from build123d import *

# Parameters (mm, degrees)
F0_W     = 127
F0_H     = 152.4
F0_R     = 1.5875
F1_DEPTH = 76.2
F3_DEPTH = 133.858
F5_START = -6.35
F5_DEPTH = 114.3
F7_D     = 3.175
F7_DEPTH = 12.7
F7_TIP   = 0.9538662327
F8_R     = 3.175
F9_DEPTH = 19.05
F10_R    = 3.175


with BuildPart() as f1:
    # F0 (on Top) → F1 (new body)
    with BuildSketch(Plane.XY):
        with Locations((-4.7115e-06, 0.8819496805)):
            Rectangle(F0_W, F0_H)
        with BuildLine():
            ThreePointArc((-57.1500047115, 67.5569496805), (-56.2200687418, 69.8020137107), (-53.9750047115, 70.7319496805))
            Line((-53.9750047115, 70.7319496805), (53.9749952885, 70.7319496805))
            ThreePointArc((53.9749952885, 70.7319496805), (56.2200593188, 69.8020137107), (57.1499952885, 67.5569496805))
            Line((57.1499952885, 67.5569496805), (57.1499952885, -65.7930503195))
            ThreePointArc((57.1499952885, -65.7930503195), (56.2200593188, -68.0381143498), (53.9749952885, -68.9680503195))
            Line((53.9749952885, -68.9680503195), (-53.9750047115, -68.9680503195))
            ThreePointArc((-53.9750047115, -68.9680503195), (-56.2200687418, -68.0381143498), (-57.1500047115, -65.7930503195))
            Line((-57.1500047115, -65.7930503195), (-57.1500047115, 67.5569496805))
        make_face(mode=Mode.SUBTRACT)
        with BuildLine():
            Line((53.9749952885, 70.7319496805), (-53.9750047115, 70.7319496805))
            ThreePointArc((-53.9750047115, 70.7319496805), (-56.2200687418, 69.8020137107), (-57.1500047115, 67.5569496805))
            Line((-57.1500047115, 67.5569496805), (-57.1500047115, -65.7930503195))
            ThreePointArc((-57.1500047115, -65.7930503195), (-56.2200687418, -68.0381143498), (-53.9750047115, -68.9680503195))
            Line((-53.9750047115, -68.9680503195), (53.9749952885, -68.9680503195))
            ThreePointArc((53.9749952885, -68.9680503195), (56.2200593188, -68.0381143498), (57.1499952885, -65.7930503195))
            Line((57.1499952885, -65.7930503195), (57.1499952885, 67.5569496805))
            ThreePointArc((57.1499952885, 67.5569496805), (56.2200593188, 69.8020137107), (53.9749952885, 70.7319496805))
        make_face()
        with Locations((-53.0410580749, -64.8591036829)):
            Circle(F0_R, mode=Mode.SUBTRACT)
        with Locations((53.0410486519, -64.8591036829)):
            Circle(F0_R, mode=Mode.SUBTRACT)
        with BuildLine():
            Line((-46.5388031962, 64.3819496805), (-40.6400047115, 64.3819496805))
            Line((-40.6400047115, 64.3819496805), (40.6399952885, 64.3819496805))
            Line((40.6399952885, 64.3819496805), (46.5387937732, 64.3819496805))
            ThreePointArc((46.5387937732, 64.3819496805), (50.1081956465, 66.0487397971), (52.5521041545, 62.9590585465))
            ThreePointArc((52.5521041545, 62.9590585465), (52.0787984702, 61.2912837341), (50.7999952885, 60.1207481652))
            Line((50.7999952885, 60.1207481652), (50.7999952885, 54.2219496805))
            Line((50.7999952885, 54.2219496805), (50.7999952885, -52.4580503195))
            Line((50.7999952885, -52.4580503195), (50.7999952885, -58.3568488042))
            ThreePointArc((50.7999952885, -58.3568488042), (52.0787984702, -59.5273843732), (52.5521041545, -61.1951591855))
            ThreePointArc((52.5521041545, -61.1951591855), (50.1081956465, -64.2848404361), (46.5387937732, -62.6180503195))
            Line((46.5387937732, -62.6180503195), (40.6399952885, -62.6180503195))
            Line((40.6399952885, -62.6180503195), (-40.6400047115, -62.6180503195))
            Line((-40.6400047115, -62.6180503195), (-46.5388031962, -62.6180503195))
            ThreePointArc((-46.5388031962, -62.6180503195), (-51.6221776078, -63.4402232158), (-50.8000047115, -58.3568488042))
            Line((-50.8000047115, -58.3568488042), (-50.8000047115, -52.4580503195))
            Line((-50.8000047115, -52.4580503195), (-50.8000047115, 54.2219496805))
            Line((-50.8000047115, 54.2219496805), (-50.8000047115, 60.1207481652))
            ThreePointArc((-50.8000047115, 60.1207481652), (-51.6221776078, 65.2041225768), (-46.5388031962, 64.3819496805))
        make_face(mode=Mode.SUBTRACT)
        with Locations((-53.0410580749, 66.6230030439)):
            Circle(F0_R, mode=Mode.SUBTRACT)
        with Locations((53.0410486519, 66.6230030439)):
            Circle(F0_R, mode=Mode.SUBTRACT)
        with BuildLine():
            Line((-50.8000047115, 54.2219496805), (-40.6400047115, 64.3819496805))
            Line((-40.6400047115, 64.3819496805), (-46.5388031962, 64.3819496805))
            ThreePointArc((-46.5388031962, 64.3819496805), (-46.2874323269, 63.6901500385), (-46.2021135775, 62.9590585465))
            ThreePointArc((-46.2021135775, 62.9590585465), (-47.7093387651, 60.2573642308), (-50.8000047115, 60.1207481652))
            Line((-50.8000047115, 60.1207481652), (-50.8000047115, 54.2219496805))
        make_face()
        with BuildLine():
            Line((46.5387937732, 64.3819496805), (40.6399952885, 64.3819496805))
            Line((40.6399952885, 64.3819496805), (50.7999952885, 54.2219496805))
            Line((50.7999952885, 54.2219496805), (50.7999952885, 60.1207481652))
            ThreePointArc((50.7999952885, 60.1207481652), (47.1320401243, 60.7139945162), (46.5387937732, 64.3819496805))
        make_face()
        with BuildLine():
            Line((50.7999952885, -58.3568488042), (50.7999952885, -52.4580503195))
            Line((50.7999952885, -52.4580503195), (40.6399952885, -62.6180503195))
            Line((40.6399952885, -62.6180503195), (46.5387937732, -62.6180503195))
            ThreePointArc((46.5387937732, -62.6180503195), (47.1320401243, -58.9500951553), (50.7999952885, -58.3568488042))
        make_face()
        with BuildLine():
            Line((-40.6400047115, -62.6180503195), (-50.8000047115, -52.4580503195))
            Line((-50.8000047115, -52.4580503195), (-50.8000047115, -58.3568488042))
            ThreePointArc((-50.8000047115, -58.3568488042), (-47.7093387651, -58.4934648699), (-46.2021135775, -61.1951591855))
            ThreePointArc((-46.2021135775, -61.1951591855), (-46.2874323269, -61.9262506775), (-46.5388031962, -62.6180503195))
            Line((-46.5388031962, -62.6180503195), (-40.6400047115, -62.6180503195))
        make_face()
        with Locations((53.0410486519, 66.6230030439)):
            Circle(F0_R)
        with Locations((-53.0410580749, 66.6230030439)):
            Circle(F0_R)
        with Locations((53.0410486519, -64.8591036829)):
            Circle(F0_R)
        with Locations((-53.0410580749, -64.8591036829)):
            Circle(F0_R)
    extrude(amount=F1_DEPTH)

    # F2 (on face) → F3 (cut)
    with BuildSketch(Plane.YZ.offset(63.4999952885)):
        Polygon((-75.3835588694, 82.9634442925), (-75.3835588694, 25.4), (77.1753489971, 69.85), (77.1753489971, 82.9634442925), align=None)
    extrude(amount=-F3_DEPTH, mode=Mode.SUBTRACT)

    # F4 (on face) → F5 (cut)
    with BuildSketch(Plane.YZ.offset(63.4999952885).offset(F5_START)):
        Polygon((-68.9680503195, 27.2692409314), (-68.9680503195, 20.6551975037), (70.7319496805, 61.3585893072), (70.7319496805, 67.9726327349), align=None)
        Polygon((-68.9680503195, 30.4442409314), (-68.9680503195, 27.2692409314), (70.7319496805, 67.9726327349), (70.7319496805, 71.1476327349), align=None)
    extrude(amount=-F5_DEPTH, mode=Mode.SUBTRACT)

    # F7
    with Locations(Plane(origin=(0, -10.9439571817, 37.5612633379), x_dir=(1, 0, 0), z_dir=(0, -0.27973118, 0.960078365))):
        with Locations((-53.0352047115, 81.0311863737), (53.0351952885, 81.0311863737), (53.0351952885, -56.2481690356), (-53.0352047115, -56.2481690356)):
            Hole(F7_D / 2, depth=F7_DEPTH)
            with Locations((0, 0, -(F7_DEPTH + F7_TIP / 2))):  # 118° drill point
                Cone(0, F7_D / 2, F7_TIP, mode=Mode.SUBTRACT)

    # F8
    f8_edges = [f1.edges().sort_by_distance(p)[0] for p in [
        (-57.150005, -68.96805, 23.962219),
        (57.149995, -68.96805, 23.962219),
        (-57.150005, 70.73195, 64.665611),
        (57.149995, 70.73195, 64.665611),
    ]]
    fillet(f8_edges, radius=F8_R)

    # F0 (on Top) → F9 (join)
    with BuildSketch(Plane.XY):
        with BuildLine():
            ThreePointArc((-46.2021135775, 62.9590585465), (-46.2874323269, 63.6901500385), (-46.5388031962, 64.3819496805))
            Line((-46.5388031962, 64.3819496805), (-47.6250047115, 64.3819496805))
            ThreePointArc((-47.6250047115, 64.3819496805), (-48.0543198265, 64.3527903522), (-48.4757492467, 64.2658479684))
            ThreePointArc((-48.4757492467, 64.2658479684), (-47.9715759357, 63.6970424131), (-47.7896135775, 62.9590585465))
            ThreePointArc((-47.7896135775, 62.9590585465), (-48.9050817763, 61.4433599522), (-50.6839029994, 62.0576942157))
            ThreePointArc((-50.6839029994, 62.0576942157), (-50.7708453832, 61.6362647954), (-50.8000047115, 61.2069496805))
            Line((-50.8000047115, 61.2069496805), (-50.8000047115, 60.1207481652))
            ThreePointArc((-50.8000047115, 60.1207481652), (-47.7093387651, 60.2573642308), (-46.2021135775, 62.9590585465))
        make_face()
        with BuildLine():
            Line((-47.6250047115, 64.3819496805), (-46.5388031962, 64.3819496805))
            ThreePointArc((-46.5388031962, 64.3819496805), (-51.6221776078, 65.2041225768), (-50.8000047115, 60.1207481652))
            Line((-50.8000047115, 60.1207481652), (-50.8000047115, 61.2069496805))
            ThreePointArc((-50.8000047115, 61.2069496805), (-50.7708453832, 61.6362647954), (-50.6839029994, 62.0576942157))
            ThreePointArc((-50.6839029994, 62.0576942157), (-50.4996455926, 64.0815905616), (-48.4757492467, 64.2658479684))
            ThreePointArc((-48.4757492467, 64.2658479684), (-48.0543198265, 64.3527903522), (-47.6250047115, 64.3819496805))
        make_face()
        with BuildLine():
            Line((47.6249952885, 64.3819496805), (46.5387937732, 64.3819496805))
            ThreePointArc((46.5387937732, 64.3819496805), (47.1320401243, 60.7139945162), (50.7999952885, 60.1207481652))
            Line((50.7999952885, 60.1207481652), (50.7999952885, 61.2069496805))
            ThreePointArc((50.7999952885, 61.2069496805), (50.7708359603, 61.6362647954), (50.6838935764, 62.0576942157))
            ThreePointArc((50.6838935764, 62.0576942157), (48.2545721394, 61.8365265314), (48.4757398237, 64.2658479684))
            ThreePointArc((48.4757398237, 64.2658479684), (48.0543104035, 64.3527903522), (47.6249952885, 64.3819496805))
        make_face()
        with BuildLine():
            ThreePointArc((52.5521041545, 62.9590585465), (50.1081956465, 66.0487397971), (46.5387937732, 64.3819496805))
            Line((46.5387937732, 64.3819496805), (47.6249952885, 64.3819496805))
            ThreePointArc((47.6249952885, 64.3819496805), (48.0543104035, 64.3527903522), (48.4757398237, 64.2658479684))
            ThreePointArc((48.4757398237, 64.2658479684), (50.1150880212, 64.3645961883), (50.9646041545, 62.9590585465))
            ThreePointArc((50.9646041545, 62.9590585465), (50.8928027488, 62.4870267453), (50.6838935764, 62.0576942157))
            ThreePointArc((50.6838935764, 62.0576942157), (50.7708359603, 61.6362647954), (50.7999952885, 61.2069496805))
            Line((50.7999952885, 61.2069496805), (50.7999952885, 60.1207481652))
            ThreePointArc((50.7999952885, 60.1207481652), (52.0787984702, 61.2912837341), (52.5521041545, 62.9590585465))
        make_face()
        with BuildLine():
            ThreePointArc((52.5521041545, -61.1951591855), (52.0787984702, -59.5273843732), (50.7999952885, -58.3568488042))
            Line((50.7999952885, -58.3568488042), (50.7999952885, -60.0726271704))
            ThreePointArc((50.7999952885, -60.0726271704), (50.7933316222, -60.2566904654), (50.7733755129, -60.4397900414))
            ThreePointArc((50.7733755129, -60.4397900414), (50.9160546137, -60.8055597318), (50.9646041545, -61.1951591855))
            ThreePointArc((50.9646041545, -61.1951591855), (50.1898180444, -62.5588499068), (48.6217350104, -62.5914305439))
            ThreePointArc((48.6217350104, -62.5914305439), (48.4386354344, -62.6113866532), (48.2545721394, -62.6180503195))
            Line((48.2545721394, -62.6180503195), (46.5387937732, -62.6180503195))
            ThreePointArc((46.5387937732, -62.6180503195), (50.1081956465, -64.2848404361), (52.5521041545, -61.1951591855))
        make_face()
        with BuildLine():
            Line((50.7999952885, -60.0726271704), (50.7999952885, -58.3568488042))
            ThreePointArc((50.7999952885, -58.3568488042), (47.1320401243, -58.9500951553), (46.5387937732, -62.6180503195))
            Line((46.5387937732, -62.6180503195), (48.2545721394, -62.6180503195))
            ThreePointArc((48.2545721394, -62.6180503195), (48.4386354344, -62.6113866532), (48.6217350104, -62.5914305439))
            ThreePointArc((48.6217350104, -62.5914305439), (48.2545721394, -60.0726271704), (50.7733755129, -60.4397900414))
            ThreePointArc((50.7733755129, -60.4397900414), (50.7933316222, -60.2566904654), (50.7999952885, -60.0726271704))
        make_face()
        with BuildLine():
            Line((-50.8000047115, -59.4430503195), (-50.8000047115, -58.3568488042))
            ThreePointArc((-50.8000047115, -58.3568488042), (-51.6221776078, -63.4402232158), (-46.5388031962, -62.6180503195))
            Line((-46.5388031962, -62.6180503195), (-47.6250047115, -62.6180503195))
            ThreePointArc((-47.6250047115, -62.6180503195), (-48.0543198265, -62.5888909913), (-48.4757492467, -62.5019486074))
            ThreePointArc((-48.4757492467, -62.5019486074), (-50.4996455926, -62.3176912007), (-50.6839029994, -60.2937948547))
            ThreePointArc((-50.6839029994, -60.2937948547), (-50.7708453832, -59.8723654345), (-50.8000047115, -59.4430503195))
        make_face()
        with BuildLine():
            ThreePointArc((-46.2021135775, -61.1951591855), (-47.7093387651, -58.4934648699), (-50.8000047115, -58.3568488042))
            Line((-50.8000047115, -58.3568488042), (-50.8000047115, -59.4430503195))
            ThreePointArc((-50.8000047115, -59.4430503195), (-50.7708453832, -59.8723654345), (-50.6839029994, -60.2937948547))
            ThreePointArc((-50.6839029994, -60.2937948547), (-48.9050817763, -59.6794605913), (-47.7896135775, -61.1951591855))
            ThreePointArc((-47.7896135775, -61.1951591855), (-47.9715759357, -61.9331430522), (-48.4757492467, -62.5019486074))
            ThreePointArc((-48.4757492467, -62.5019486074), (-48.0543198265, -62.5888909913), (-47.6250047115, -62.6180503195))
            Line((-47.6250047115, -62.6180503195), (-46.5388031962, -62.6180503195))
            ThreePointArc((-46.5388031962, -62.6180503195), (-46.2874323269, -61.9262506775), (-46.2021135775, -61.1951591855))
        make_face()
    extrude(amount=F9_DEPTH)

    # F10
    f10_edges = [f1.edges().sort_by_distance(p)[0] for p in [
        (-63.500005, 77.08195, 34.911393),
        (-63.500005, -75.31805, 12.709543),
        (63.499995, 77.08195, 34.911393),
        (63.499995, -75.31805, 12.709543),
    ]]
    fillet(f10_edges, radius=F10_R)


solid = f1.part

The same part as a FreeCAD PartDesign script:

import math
import FreeCAD as App
import Part
import Sketcher
from FreeCAD import Vector
Q = App.Units.Quantity


def edges_at(feature, points):
    """Names of the edges that pass closest to the given points."""
    edges = feature.Shape.Edges
    near = lambda p: min(range(len(edges)), key=lambda i: edges[i].distToShape(Part.Vertex(*p))[0])
    return sorted({f"Edge{near(p) + 1}" for p in points})

doc = App.newDocument("Part")
params = doc.addObject("Spreadsheet::Sheet", "Params")
for row, (alias, value) in enumerate([
    ("sketch1_width", "5 in"),
    ("sketch1_height", "6 in"),
    ("sketch1_width2", "3.2 in"),
    ("sketch1_height2", "4.2 in"),
    ("sketch1_radius", "0.125 in"),
    ("pad1_length", "3 in"),
    ("pocket1_length", "5.27 in"),
    ("pocket2_length", "4.5 in"),
    ("sketch4_diameter", "0.125 in"),
    ("hole_diameter", "0.125 in"),
    ("hole_depth", "0.5 in"),
    ("fillet_radius", "0.125 in"),
    ("sketch5_diameter", "0.25 in"),
    ("sketch5_radius", "0.0625 in"),
    ("pad2_length", "0.75 in"),
    ("fillet2_radius", "0.125 in"),
], start=1):
    params.set(f"A{row}", alias)
    params.set(f"B{row}", "=" + value)
    params.setAlias(f"B{row}", alias)

body = doc.addObject("PartDesign::Body", "Body")

sketch1 = body.newObject("Sketcher::SketchObject", "Sketch")
sketch1.AttachmentSupport = (doc.getObject("XY_Plane"), [""])
sketch1.MapMode = "FlatFace"
sketch1.addGeometry(Part.LineSegment(Vector(-63.5, 77.1, 0), Vector(-63.5, -75.3, 0)), False)
sketch1.addGeometry(Part.LineSegment(Vector(-63.5, -75.3, 0), Vector(63.5, -75.3, 0)), False)
sketch1.addGeometry(Part.LineSegment(Vector(63.5, -75.3, 0), Vector(63.5, 77.1, 0)), False)
sketch1.addGeometry(Part.LineSegment(Vector(63.5, 77.1, 0), Vector(-63.5, 77.1, 0)), False)
sketch1.addGeometry(Part.ArcOfCircle(Part.Circle(Vector(-49.4, 63, 0), Vector(0, 0, 1), 3.2), math.radians(27), math.radians(243)), False)
sketch1.addGeometry(Part.ArcOfCircle(Part.Circle(Vector(-49.4, 63, 0), Vector(0, 0, 1), 3.2), math.radians(0), math.radians(27)), False)
sketch1.addGeometry(Part.ArcOfCircle(Part.Circle(Vector(-49.4, 63, 0), Vector(0, 0, 1), 3.2), math.radians(-117), math.radians(0)), False)
sketch1.addGeometry(Part.LineSegment(Vector(-50.8, -52.5, 0), Vector(-50.8, 54.2, 0)), False)
sketch1.addGeometry(Part.LineSegment(Vector(-50.8, 54.2, 0), Vector(-40.6, 64.4, 0)), False)
sketch1.addGeometry(Part.LineSegment(Vector(-40.6, 64.4, 0), Vector(40.6, 64.4, 0)), False)
sketch1.addGeometry(Part.LineSegment(Vector(40.6, 64.4, 0), Vector(50.8, 54.2, 0)), False)
sketch1.addGeometry(Part.LineSegment(Vector(50.8, 54.2, 0), Vector(50.8, -52.5, 0)), False)
sketch1.addGeometry(Part.LineSegment(Vector(50.8, -52.5, 0), Vector(40.6, -62.6, 0)), False)
sketch1.addGeometry(Part.LineSegment(Vector(40.6, -62.6, 0), Vector(-40.6, -62.6, 0)), False)
sketch1.addGeometry(Part.LineSegment(Vector(-40.6, -62.6, 0), Vector(-50.8, -52.5, 0)), False)
sketch1.addGeometry(Part.ArcOfCircle(Part.Circle(Vector(-49.4, -61.2, 0), Vector(0, 0, 1), 3.2), math.radians(117), math.radians(333)), False)
sketch1.addGeometry(Part.ArcOfCircle(Part.Circle(Vector(-49.4, -61.2, 0), Vector(0, 0, 1), 3.2), math.radians(0), math.radians(117)), False)
sketch1.addGeometry(Part.ArcOfCircle(Part.Circle(Vector(-49.4, -61.2, 0), Vector(0, 0, 1), 3.2), math.radians(-27), math.radians(0)), False)
sketch1.addGeometry(Part.ArcOfCircle(Part.Circle(Vector(49.4, -61.2, 0), Vector(0, 0, 1), 3.2), math.radians(-153), math.radians(0)), False)
sketch1.addGeometry(Part.ArcOfCircle(Part.Circle(Vector(49.4, -61.2, 0), Vector(0, 0, 1), 3.2), math.radians(0), math.radians(207)), False)
sketch1.addGeometry(Part.ArcOfCircle(Part.Circle(Vector(49.4, 63, 0), Vector(0, 0, 1), 3.2), math.radians(0), math.radians(153)), False)
sketch1.addGeometry(Part.ArcOfCircle(Part.Circle(Vector(49.4, 63, 0), Vector(0, 0, 1), 3.2), math.radians(-63), math.radians(0)), False)
sketch1.addGeometry(Part.ArcOfCircle(Part.Circle(Vector(49.4, 63, 0), Vector(0, 0, 1), 3.2), math.radians(153), math.radians(297)), False)
sketch1.addConstraint(Sketcher.Constraint("Coincident", 0, 2, 1, 1))
sketch1.addConstraint(Sketcher.Constraint("Coincident", 1, 2, 2, 1))
sketch1.addConstraint(Sketcher.Constraint("Coincident", 2, 2, 3, 1))
sketch1.addConstraint(Sketcher.Constraint("Coincident", 3, 2, 0, 1))
sketch1.addConstraint(Sketcher.Constraint("Tangent", 4, 1, 5, 2))
sketch1.addConstraint(Sketcher.Constraint("Tangent", 5, 1, 6, 2))
sketch1.addConstraint(Sketcher.Constraint("Tangent", 6, 1, 4, 2))
sketch1.addConstraint(Sketcher.Constraint("Coincident", 7, 2, 8, 1))
sketch1.addConstraint(Sketcher.Constraint("Coincident", 8, 2, 9, 1))
sketch1.addConstraint(Sketcher.Constraint("Coincident", 9, 2, 10, 1))
sketch1.addConstraint(Sketcher.Constraint("Coincident", 10, 2, 11, 1))
sketch1.addConstraint(Sketcher.Constraint("Coincident", 11, 2, 12, 1))
sketch1.addConstraint(Sketcher.Constraint("Coincident", 12, 2, 13, 1))
sketch1.addConstraint(Sketcher.Constraint("Coincident", 13, 2, 14, 1))
sketch1.addConstraint(Sketcher.Constraint("Coincident", 14, 2, 7, 1))
sketch1.addConstraint(Sketcher.Constraint("Tangent", 15, 1, 16, 2))
sketch1.addConstraint(Sketcher.Constraint("Tangent", 16, 1, 17, 2))
sketch1.addConstraint(Sketcher.Constraint("Tangent", 17, 1, 15, 2))
sketch1.addConstraint(Sketcher.Constraint("Tangent", 18, 1, 19, 2))
sketch1.addConstraint(Sketcher.Constraint("Coincident", 19, 1, 18, 2))
sketch1.addConstraint(Sketcher.Constraint("Tangent", 20, 1, 21, 2))
sketch1.addConstraint(Sketcher.Constraint("Tangent", 21, 1, 22, 2))
sketch1.addConstraint(Sketcher.Constraint("Tangent", 22, 1, 20, 2))
sketch1.addConstraint(Sketcher.Constraint("Vertical", 0))
sketch1.addConstraint(Sketcher.Constraint("Horizontal", 1))
sketch1.addConstraint(Sketcher.Constraint("Vertical", 2))
sketch1.addConstraint(Sketcher.Constraint("Horizontal", 3))
sketch1.addConstraint(Sketcher.Constraint("Vertical", 7))
sketch1.addConstraint(Sketcher.Constraint("Horizontal", 9))
sketch1.addConstraint(Sketcher.Constraint("Vertical", 11))
sketch1.addConstraint(Sketcher.Constraint("Horizontal", 13))
sketch1.addConstraint(Sketcher.Constraint("Equal", 6, 15))
sketch1.addConstraint(Sketcher.Constraint("Equal", 17, 18))
sketch1.addConstraint(Sketcher.Constraint("Equal", 19, 20))
sketch1.addConstraint(Sketcher.Constraint("Symmetric", 15, 3, 18, 3, -2))
sketch1.addConstraint(Sketcher.Constraint("Symmetric", 4, 3, 20, 3, -2))
sketch1.addConstraint(Sketcher.Constraint("Symmetric", 7, 2, 10, 2, -2))
sketch1.addConstraint(Sketcher.Constraint("Perpendicular", 8, 10))
sketch1.addConstraint(Sketcher.Constraint("Perpendicular", 10, 12))
sketch1.addConstraint(Sketcher.Constraint("Perpendicular", 12, 14))
sketch1.addConstraint(Sketcher.Constraint("Horizontal", 22, 3, 5, 1))
sketch1.addConstraint(Sketcher.Constraint("Horizontal", 4, 1, 8, 2))
sketch1.addConstraint(Sketcher.Constraint("Horizontal", 11, 2, 14, 2))
sketch1.addConstraint(Sketcher.Constraint("Horizontal", 19, 3, 16, 1))
sketch1.addConstraint(Sketcher.Constraint("Horizontal", 13, 2, 17, 1))
sketch1.addConstraint(Sketcher.Constraint("Horizontal", 17, 1, 18, 1))
sketch1.addConstraint(Sketcher.Constraint("Horizontal", 16, 1, 19, 1))
sketch1.addConstraint(Sketcher.Constraint("Horizontal", 5, 1, 20, 1))
sketch1.addConstraint(Sketcher.Constraint("Horizontal", 6, 1, 21, 1))
sketch1.addConstraint(Sketcher.Constraint("Horizontal", 9, 2, 22, 1))
sketch1.addConstraint(Sketcher.Constraint("Vertical", 6, 3, 15, 3))
sketch1.addConstraint(Sketcher.Constraint("Vertical", 6, 1, 7, 2))
sketch1.addConstraint(Sketcher.Constraint("Vertical", 9, 2, 12, 2))
sketch1.addConstraint(Sketcher.Constraint("Vertical", 8, 2, 13, 2))
sketch1.addConstraint(Sketcher.Constraint("Vertical", 14, 2, 15, 1))
sketch1.addConstraint(Sketcher.Constraint("Vertical", 4, 1, 17, 1))
sketch1.addConstraint(Sketcher.Constraint("DistanceX", 1, 1, 1, 2, Q("5 in")))
sketch1.addConstraint(Sketcher.Constraint("DistanceY", 0, 2, 0, 1, Q("6 in")))
sketch1.addConstraint(Sketcher.Constraint("DistanceX", 9, 1, 9, 2, Q("3.2 in")))
sketch1.addConstraint(Sketcher.Constraint("DistanceY", 7, 1, 7, 2, Q("4.2 in")))
sketch1.addConstraint(Sketcher.Constraint("DistanceX", 6, 1, -1, 1, Q("2.0000002 in")))
sketch1.addConstraint(Sketcher.Constraint("Radius", 4, Q("0.125 in")))
sketch1.addConstraint(Sketcher.Constraint("DistanceX", 0, 2, -1, 1, Q("2.5000002 in")))
sketch1.addConstraint(Sketcher.Constraint("DistanceY", 4, 1, 3, 2, Q("0.5 in")))
sketch1.addConstraint(Sketcher.Constraint("DistanceX", 3, 2, 4, 1, 16.961202))
sketch1.addConstraint(Sketcher.Constraint("DistanceY", 6, 1, 4, 1, 4.261202))
sketch1.addConstraint(Sketcher.Constraint("DistanceY", -1, 1, 4, 3, 62.959059))
sketch1.setExpression("Constraints[56]", "Params.sketch1_width")
sketch1.setExpression("Constraints[57]", "Params.sketch1_height")
sketch1.setExpression("Constraints[58]", "Params.sketch1_width2")
sketch1.setExpression("Constraints[59]", "Params.sketch1_height2")
sketch1.setExpression("Constraints[61]", "Params.sketch1_radius")
pad1 = body.newObject("PartDesign::Pad", "Pad")
pad1.Profile = sketch1
pad1.setExpression("Length", "Params.pad1_length")

sketch2 = body.newObject("Sketcher::SketchObject", "Sketch001")
sketch2.AttachmentSupport = (doc.getObject("YZ_Plane"), [""])
sketch2.MapMode = "FlatFace"
sketch2.AttachmentOffset = App.Placement(Vector(0, 0, 2.4999998 * 25.4), App.Rotation())
sketch2.addGeometry(Part.LineSegment(Vector(-75, 83, 0), Vector(-75, 25, 0)), False)
sketch2.addGeometry(Part.LineSegment(Vector(-75, 25, 0), Vector(77, 70, 0)), False)
sketch2.addGeometry(Part.LineSegment(Vector(77, 70, 0), Vector(77, 83, 0)), False)
sketch2.addGeometry(Part.LineSegment(Vector(77, 83, 0), Vector(-75, 83, 0)), False)
sketch2.addConstraint(Sketcher.Constraint("Coincident", 0, 2, 1, 1))
sketch2.addConstraint(Sketcher.Constraint("Coincident", 1, 2, 2, 1))
sketch2.addConstraint(Sketcher.Constraint("Coincident", 2, 2, 3, 1))
sketch2.addConstraint(Sketcher.Constraint("Coincident", 3, 2, 0, 1))
sketch2.addConstraint(Sketcher.Constraint("Vertical", 0))
sketch2.addConstraint(Sketcher.Constraint("Vertical", 2))
sketch2.addConstraint(Sketcher.Constraint("Horizontal", 3))
sketch2.addConstraint(Sketcher.Constraint("DistanceY", -1, 1, 0, 2, Q("1 in")))
sketch2.addConstraint(Sketcher.Constraint("DistanceY", -1, 1, 1, 2, Q("2.75 in")))
sketch2.addConstraint(Sketcher.Constraint("DistanceX", 3, 2, 3, 1, 152.558908))
sketch2.addConstraint(Sketcher.Constraint("DistanceY", 0, 2, 0, 1, 57.563444))
sketch2.addConstraint(Sketcher.Constraint("DistanceX", 0, 2, -1, 1, 75.383559))
pocket1 = body.newObject("PartDesign::Pocket", "Pocket")
pocket1.Profile = sketch2
pocket1.setExpression("Length", "Params.pocket1_length")

sketch3 = body.newObject("Sketcher::SketchObject", "Sketch002")
sketch3.AttachmentSupport = (doc.getObject("YZ_Plane"), [""])
sketch3.MapMode = "FlatFace"
sketch3.AttachmentOffset = App.Placement(Vector(0, 0, 2.2499998 * 25.4), App.Rotation())
sketch3.addGeometry(Part.LineSegment(Vector(-69, 21, 0), Vector(71, 61, 0)), False)
sketch3.addGeometry(Part.LineSegment(Vector(71, 61, 0), Vector(71, 71, 0)), False)
sketch3.addGeometry(Part.LineSegment(Vector(71, 71, 0), Vector(-69, 30, 0)), False)
sketch3.addGeometry(Part.LineSegment(Vector(-69, 30, 0), Vector(-69, 21, 0)), False)
sketch3.addConstraint(Sketcher.Constraint("Coincident", 0, 2, 1, 1))
sketch3.addConstraint(Sketcher.Constraint("Coincident", 1, 2, 2, 1))
sketch3.addConstraint(Sketcher.Constraint("Coincident", 2, 2, 3, 1))
sketch3.addConstraint(Sketcher.Constraint("Coincident", 3, 2, 0, 1))
sketch3.addConstraint(Sketcher.Constraint("Vertical", 1))
sketch3.addConstraint(Sketcher.Constraint("Vertical", 3))
sketch3.addConstraint(Sketcher.Constraint("Parallel", 0, 2))
sketch3.addConstraint(Sketcher.Constraint("DistanceX", 2, 2, 0, 2, Q("5.5 in")))
sketch3.addConstraint(Sketcher.Constraint("DistanceY", 1, 1, 1, 2, 9.789043))
sketch3.addConstraint(Sketcher.Constraint("DistanceX", -1, 1, 0, 2, 70.73195))
sketch3.addConstraint(Sketcher.Constraint("DistanceY", -1, 1, 0, 2, 61.358589))
sketch3.addConstraint(Sketcher.Constraint("DistanceY", -1, 1, 2, 2, 30.444241))
pocket2 = body.newObject("PartDesign::Pocket", "Pocket001")
pocket2.Profile = sketch3
pocket2.setExpression("Length", "Params.pocket2_length")

sketch4 = body.newObject("Sketcher::SketchObject", "Sketch003")
sketch4.Placement = App.Placement(Vector(0, -10.943957, 37.561263), App.Rotation(Vector(1, 0, 0), Vector(0, 0.960078365, 0.27973118), Vector(0, -0.27973118, 0.960078365), "ZXY"))
sketch4.addGeometry(Part.Circle(Vector(-53, 81, 0), Vector(0, 0, 1), 1.6), False)
sketch4.addGeometry(Part.Circle(Vector(53, 81, 0), Vector(0, 0, 1), 1.6), False)
sketch4.addGeometry(Part.Circle(Vector(53, -56.2, 0), Vector(0, 0, 1), 1.6), False)
sketch4.addGeometry(Part.Circle(Vector(-53, -56.2, 0), Vector(0, 0, 1), 1.6), False)
sketch4.addConstraint(Sketcher.Constraint("Equal", 0, 1))
sketch4.addConstraint(Sketcher.Constraint("Equal", 1, 2))
sketch4.addConstraint(Sketcher.Constraint("Equal", 2, 3))
sketch4.addConstraint(Sketcher.Constraint("Symmetric", 0, 3, 1, 3, -2))
sketch4.addConstraint(Sketcher.Constraint("Symmetric", 2, 3, 3, 3, -2))
sketch4.addConstraint(Sketcher.Constraint("Vertical", 1, 3, 2, 3))
sketch4.addConstraint(Sketcher.Constraint("Diameter", 0, Q("0.125 in")))
sketch4.addConstraint(Sketcher.Constraint("DistanceX", 0, 3, -1, 1, Q("2.0880002 in")))
sketch4.addConstraint(Sketcher.Constraint("DistanceY", 2, 3, -1, 1, 56.248169))
sketch4.addConstraint(Sketcher.Constraint("DistanceY", -1, 1, 0, 3, 81.031186))
sketch4.setExpression("Constraints[6]", "Params.sketch4_diameter")
doc.recompute()
hole = body.newObject("PartDesign::Hole", "Hole")
hole.Profile = sketch4
hole.ThreadType = "None"
hole.setExpression("Diameter", "Params.hole_diameter")
hole.DepthType = "Dimension"
hole.setExpression("Depth", "Params.hole_depth")
hole.DrillPoint = "Angled"
hole.DrillPointAngle = 118
doc.recompute()

fillet = body.newObject("PartDesign::Fillet", "Fillet")
fillet.Base = (hole, edges_at(hole, [
    (-57.15, -68.968, 23.962),
    (57.15, -68.968, 23.962),
    (-57.15, 70.732, 64.666),
    (57.15, 70.732, 64.666),
]))
fillet.setExpression("Radius", "Params.fillet_radius")

sketch5 = body.newObject("Sketcher::SketchObject", "Sketch004")
sketch5.AttachmentSupport = (doc.getObject("XY_Plane"), [""])
sketch5.MapMode = "FlatFace"
sketch5.addGeometry(Part.ArcOfCircle(Part.Circle(Vector(-49.4, 63, 0), Vector(0, 0, 1), 3.2), math.radians(0), math.radians(27)), False)
sketch5.addGeometry(Part.ArcOfCircle(Part.Circle(Vector(-49.4, 63, 0), Vector(0, 0, 1), 3.2), math.radians(27), math.radians(243)), False)
sketch5.addGeometry(Part.ArcOfCircle(Part.Circle(Vector(-49.4, 63, 0), Vector(0, 0, 1), 3.2), math.radians(-117), math.radians(0)), False)
sketch5.addGeometry(Part.ArcOfCircle(Part.Circle(Vector(-49.4, 63, 0), Vector(0, 0, 1), 1.6), math.radians(0), math.radians(55)), False)
sketch5.addGeometry(Part.ArcOfCircle(Part.Circle(Vector(-49.4, 63, 0), Vector(0, 0, 1), 1.6), math.radians(-145), math.radians(0)), False)
sketch5.addGeometry(Part.ArcOfCircle(Part.Circle(Vector(-49.4, 63, 0), Vector(0, 0, 1), 1.6), math.radians(55), math.radians(215)), False)
sketch5.addGeometry(Part.ArcOfCircle(Part.Circle(Vector(49.4, 63, 0), Vector(0, 0, 1), 3.2), math.radians(153), math.radians(297)), False)
sketch5.addGeometry(Part.ArcOfCircle(Part.Circle(Vector(49.4, 63, 0), Vector(0, 0, 1), 3.2), math.radians(-63), math.radians(0)), False)
sketch5.addGeometry(Part.ArcOfCircle(Part.Circle(Vector(49.4, 63, 0), Vector(0, 0, 1), 3.2), math.radians(0), math.radians(153)), False)
sketch5.addGeometry(Part.ArcOfCircle(Part.Circle(Vector(49.4, 63, 0), Vector(0, 0, 1), 1.6), math.radians(125), math.radians(325)), False)
sketch5.addGeometry(Part.ArcOfCircle(Part.Circle(Vector(49.4, 63, 0), Vector(0, 0, 1), 1.6), math.radians(0), math.radians(125)), False)
sketch5.addGeometry(Part.ArcOfCircle(Part.Circle(Vector(49.4, 63, 0), Vector(0, 0, 1), 1.6), math.radians(-35), math.radians(0)), False)
sketch5.addGeometry(Part.Circle(Vector(49.4, -61.2, 0), Vector(0, 0, 1), 3.2), False)
sketch5.addGeometry(Part.ArcOfCircle(Part.Circle(Vector(49.4, -61.2, 0), Vector(0, 0, 1), 1.6), math.radians(0), math.radians(28)), False)
sketch5.addGeometry(Part.ArcOfCircle(Part.Circle(Vector(49.4, -61.2, 0), Vector(0, 0, 1), 1.6), math.radians(-118), math.radians(0)), False)
sketch5.addGeometry(Part.ArcOfCircle(Part.Circle(Vector(49.4, -61.2, 0), Vector(0, 0, 1), 1.6), math.radians(28), math.radians(242)), False)
sketch5.addGeometry(Part.ArcOfCircle(Part.Circle(Vector(-49.4, -61.2, 0), Vector(0, 0, 1), 3.2), math.radians(117), math.radians(333)), False)
sketch5.addGeometry(Part.ArcOfCircle(Part.Circle(Vector(-49.4, -61.2, 0), Vector(0, 0, 1), 3.2), math.radians(-27), math.radians(0)), False)
sketch5.addGeometry(Part.ArcOfCircle(Part.Circle(Vector(-49.4, -61.2, 0), Vector(0, 0, 1), 3.2), math.radians(0), math.radians(117)), False)
sketch5.addGeometry(Part.ArcOfCircle(Part.Circle(Vector(-49.4, -61.2, 0), Vector(0, 0, 1), 1.6), math.radians(145), math.radians(305)), False)
sketch5.addGeometry(Part.ArcOfCircle(Part.Circle(Vector(-49.4, -61.2, 0), Vector(0, 0, 1), 1.6), math.radians(0), math.radians(145)), False)
sketch5.addGeometry(Part.ArcOfCircle(Part.Circle(Vector(-49.4, -61.2, 0), Vector(0, 0, 1), 1.6), math.radians(-55), math.radians(0)), False)
sketch5.addConstraint(Sketcher.Constraint("Tangent", 0, 2, 1, 1))
sketch5.addConstraint(Sketcher.Constraint("Tangent", 1, 2, 2, 1))
sketch5.addConstraint(Sketcher.Constraint("Tangent", 2, 2, 0, 1))
sketch5.addConstraint(Sketcher.Constraint("Tangent", 3, 1, 4, 2))
sketch5.addConstraint(Sketcher.Constraint("Tangent", 4, 1, 5, 2))
sketch5.addConstraint(Sketcher.Constraint("Tangent", 5, 1, 3, 2))
sketch5.addConstraint(Sketcher.Constraint("Tangent", 6, 2, 7, 1))
sketch5.addConstraint(Sketcher.Constraint("Tangent", 7, 2, 8, 1))
sketch5.addConstraint(Sketcher.Constraint("Tangent", 8, 2, 6, 1))
sketch5.addConstraint(Sketcher.Constraint("Tangent", 9, 1, 10, 2))
sketch5.addConstraint(Sketcher.Constraint("Tangent", 10, 1, 11, 2))
sketch5.addConstraint(Sketcher.Constraint("Tangent", 11, 1, 9, 2))
sketch5.addConstraint(Sketcher.Constraint("Tangent", 13, 1, 14, 2))
sketch5.addConstraint(Sketcher.Constraint("Tangent", 14, 1, 15, 2))
sketch5.addConstraint(Sketcher.Constraint("Tangent", 15, 1, 13, 2))
sketch5.addConstraint(Sketcher.Constraint("Tangent", 16, 2, 17, 1))
sketch5.addConstraint(Sketcher.Constraint("Tangent", 17, 2, 18, 1))
sketch5.addConstraint(Sketcher.Constraint("Tangent", 18, 2, 16, 1))
sketch5.addConstraint(Sketcher.Constraint("Tangent", 19, 1, 20, 2))
sketch5.addConstraint(Sketcher.Constraint("Tangent", 20, 1, 21, 2))
sketch5.addConstraint(Sketcher.Constraint("Tangent", 21, 1, 19, 2))
sketch5.addConstraint(Sketcher.Constraint("Coincident", 3, 3, 0, 3))
sketch5.addConstraint(Sketcher.Constraint("Coincident", 9, 3, 6, 3))
sketch5.addConstraint(Sketcher.Constraint("Coincident", 13, 3, 12, 3))
sketch5.addConstraint(Sketcher.Constraint("Coincident", 19, 3, 16, 3))
sketch5.addConstraint(Sketcher.Constraint("Equal", 2, 6))
sketch5.addConstraint(Sketcher.Constraint("Equal", 5, 9))
sketch5.addConstraint(Sketcher.Constraint("Equal", 8, 12))
sketch5.addConstraint(Sketcher.Constraint("Equal", 11, 13))
sketch5.addConstraint(Sketcher.Constraint("Equal", 12, 16))
sketch5.addConstraint(Sketcher.Constraint("Equal", 15, 19))
sketch5.addConstraint(Sketcher.Constraint("Symmetric", 0, 3, 6, 3, -2))
sketch5.addConstraint(Sketcher.Constraint("Symmetric", 12, 3, 16, 3, -2))
sketch5.addConstraint(Sketcher.Constraint("Horizontal", 11, 3, 2, 2))
sketch5.addConstraint(Sketcher.Constraint("Horizontal", 2, 2, 3, 1))
sketch5.addConstraint(Sketcher.Constraint("Horizontal", 1, 2, 6, 2))
sketch5.addConstraint(Sketcher.Constraint("Horizontal", 3, 1, 7, 2))
sketch5.addConstraint(Sketcher.Constraint("Horizontal", 0, 2, 8, 2))
sketch5.addConstraint(Sketcher.Constraint("Horizontal", 5, 1, 9, 1))
sketch5.addConstraint(Sketcher.Constraint("Horizontal", 7, 2, 10, 1))
sketch5.addConstraint(Sketcher.Constraint("Horizontal", 4, 1, 11, 1))
sketch5.addConstraint(Sketcher.Constraint("Horizontal", 21, 3, 13, 1))
sketch5.addConstraint(Sketcher.Constraint("Horizontal", 13, 1, 17, 2))
sketch5.addConstraint(Sketcher.Constraint("Horizontal", 17, 2, 20, 1))
sketch5.addConstraint(Sketcher.Constraint("Vertical", 11, 3, 12, 3))
sketch5.addConstraint(Sketcher.Constraint("Vertical", 0, 2, 16, 2))
sketch5.addConstraint(Sketcher.Constraint("Vertical", 1, 2, 18, 2))
sketch5.addConstraint(Sketcher.Constraint("Vertical", 4, 1, 19, 1))
sketch5.addConstraint(Sketcher.Constraint("Vertical", 5, 1, 21, 1))
sketch5.addConstraint(Sketcher.Constraint("Diameter", 12, Q("0.25 in")))
sketch5.addConstraint(Sketcher.Constraint("DistanceX", 1, 2, -1, 1, Q("2.0000002 in")))
sketch5.addConstraint(Sketcher.Constraint("Radius", 3, Q("0.0625 in")))
sketch5.addConstraint(Sketcher.Constraint("DistanceY", -1, 1, 0, 3, 62.959059))
sketch5.addConstraint(Sketcher.Constraint("DistanceY", 12, 3, -1, 1, 61.195159))
sketch5.addConstraint(Sketcher.Constraint("DistanceY", -1, 1, 0, 2, 64.38195))
sketch5.addConstraint(Sketcher.Constraint("DistanceY", -1, 1, 1, 2, 60.120748))
sketch5.addConstraint(Sketcher.Constraint("DistanceX", 5, 1, -1, 1, 48.475749))
sketch5.addConstraint(Sketcher.Constraint("DistanceY", 14, 1, -1, 1, 62.591431))
sketch5.addConstraint(Sketcher.Constraint("DistanceY", 15, 1, -1, 1, 60.43979))
sketch5.addConstraint(Sketcher.Constraint("DistanceX", 4, 1, 3, 3, 1.306789))
sketch5.setExpression("Constraints[49]", "Params.sketch5_diameter")
sketch5.setExpression("Constraints[51]", "Params.sketch5_radius")
pad2 = body.newObject("PartDesign::Pad", "Pad001")
pad2.Profile = sketch5
pad2.setExpression("Length", "Params.pad2_length")
doc.recompute()

fillet2 = body.newObject("PartDesign::Fillet", "Fillet001")
fillet2.Base = (pad2, edges_at(pad2, [
    (-63.5, 77.082, 34.911),
    (-63.5, -75.318, 12.71),
    (63.5, 77.082, 34.911),
    (63.5, -75.318, 12.71),
]))
fillet2.setExpression("Radius", "Params.fillet2_radius")

doc.recompute()
